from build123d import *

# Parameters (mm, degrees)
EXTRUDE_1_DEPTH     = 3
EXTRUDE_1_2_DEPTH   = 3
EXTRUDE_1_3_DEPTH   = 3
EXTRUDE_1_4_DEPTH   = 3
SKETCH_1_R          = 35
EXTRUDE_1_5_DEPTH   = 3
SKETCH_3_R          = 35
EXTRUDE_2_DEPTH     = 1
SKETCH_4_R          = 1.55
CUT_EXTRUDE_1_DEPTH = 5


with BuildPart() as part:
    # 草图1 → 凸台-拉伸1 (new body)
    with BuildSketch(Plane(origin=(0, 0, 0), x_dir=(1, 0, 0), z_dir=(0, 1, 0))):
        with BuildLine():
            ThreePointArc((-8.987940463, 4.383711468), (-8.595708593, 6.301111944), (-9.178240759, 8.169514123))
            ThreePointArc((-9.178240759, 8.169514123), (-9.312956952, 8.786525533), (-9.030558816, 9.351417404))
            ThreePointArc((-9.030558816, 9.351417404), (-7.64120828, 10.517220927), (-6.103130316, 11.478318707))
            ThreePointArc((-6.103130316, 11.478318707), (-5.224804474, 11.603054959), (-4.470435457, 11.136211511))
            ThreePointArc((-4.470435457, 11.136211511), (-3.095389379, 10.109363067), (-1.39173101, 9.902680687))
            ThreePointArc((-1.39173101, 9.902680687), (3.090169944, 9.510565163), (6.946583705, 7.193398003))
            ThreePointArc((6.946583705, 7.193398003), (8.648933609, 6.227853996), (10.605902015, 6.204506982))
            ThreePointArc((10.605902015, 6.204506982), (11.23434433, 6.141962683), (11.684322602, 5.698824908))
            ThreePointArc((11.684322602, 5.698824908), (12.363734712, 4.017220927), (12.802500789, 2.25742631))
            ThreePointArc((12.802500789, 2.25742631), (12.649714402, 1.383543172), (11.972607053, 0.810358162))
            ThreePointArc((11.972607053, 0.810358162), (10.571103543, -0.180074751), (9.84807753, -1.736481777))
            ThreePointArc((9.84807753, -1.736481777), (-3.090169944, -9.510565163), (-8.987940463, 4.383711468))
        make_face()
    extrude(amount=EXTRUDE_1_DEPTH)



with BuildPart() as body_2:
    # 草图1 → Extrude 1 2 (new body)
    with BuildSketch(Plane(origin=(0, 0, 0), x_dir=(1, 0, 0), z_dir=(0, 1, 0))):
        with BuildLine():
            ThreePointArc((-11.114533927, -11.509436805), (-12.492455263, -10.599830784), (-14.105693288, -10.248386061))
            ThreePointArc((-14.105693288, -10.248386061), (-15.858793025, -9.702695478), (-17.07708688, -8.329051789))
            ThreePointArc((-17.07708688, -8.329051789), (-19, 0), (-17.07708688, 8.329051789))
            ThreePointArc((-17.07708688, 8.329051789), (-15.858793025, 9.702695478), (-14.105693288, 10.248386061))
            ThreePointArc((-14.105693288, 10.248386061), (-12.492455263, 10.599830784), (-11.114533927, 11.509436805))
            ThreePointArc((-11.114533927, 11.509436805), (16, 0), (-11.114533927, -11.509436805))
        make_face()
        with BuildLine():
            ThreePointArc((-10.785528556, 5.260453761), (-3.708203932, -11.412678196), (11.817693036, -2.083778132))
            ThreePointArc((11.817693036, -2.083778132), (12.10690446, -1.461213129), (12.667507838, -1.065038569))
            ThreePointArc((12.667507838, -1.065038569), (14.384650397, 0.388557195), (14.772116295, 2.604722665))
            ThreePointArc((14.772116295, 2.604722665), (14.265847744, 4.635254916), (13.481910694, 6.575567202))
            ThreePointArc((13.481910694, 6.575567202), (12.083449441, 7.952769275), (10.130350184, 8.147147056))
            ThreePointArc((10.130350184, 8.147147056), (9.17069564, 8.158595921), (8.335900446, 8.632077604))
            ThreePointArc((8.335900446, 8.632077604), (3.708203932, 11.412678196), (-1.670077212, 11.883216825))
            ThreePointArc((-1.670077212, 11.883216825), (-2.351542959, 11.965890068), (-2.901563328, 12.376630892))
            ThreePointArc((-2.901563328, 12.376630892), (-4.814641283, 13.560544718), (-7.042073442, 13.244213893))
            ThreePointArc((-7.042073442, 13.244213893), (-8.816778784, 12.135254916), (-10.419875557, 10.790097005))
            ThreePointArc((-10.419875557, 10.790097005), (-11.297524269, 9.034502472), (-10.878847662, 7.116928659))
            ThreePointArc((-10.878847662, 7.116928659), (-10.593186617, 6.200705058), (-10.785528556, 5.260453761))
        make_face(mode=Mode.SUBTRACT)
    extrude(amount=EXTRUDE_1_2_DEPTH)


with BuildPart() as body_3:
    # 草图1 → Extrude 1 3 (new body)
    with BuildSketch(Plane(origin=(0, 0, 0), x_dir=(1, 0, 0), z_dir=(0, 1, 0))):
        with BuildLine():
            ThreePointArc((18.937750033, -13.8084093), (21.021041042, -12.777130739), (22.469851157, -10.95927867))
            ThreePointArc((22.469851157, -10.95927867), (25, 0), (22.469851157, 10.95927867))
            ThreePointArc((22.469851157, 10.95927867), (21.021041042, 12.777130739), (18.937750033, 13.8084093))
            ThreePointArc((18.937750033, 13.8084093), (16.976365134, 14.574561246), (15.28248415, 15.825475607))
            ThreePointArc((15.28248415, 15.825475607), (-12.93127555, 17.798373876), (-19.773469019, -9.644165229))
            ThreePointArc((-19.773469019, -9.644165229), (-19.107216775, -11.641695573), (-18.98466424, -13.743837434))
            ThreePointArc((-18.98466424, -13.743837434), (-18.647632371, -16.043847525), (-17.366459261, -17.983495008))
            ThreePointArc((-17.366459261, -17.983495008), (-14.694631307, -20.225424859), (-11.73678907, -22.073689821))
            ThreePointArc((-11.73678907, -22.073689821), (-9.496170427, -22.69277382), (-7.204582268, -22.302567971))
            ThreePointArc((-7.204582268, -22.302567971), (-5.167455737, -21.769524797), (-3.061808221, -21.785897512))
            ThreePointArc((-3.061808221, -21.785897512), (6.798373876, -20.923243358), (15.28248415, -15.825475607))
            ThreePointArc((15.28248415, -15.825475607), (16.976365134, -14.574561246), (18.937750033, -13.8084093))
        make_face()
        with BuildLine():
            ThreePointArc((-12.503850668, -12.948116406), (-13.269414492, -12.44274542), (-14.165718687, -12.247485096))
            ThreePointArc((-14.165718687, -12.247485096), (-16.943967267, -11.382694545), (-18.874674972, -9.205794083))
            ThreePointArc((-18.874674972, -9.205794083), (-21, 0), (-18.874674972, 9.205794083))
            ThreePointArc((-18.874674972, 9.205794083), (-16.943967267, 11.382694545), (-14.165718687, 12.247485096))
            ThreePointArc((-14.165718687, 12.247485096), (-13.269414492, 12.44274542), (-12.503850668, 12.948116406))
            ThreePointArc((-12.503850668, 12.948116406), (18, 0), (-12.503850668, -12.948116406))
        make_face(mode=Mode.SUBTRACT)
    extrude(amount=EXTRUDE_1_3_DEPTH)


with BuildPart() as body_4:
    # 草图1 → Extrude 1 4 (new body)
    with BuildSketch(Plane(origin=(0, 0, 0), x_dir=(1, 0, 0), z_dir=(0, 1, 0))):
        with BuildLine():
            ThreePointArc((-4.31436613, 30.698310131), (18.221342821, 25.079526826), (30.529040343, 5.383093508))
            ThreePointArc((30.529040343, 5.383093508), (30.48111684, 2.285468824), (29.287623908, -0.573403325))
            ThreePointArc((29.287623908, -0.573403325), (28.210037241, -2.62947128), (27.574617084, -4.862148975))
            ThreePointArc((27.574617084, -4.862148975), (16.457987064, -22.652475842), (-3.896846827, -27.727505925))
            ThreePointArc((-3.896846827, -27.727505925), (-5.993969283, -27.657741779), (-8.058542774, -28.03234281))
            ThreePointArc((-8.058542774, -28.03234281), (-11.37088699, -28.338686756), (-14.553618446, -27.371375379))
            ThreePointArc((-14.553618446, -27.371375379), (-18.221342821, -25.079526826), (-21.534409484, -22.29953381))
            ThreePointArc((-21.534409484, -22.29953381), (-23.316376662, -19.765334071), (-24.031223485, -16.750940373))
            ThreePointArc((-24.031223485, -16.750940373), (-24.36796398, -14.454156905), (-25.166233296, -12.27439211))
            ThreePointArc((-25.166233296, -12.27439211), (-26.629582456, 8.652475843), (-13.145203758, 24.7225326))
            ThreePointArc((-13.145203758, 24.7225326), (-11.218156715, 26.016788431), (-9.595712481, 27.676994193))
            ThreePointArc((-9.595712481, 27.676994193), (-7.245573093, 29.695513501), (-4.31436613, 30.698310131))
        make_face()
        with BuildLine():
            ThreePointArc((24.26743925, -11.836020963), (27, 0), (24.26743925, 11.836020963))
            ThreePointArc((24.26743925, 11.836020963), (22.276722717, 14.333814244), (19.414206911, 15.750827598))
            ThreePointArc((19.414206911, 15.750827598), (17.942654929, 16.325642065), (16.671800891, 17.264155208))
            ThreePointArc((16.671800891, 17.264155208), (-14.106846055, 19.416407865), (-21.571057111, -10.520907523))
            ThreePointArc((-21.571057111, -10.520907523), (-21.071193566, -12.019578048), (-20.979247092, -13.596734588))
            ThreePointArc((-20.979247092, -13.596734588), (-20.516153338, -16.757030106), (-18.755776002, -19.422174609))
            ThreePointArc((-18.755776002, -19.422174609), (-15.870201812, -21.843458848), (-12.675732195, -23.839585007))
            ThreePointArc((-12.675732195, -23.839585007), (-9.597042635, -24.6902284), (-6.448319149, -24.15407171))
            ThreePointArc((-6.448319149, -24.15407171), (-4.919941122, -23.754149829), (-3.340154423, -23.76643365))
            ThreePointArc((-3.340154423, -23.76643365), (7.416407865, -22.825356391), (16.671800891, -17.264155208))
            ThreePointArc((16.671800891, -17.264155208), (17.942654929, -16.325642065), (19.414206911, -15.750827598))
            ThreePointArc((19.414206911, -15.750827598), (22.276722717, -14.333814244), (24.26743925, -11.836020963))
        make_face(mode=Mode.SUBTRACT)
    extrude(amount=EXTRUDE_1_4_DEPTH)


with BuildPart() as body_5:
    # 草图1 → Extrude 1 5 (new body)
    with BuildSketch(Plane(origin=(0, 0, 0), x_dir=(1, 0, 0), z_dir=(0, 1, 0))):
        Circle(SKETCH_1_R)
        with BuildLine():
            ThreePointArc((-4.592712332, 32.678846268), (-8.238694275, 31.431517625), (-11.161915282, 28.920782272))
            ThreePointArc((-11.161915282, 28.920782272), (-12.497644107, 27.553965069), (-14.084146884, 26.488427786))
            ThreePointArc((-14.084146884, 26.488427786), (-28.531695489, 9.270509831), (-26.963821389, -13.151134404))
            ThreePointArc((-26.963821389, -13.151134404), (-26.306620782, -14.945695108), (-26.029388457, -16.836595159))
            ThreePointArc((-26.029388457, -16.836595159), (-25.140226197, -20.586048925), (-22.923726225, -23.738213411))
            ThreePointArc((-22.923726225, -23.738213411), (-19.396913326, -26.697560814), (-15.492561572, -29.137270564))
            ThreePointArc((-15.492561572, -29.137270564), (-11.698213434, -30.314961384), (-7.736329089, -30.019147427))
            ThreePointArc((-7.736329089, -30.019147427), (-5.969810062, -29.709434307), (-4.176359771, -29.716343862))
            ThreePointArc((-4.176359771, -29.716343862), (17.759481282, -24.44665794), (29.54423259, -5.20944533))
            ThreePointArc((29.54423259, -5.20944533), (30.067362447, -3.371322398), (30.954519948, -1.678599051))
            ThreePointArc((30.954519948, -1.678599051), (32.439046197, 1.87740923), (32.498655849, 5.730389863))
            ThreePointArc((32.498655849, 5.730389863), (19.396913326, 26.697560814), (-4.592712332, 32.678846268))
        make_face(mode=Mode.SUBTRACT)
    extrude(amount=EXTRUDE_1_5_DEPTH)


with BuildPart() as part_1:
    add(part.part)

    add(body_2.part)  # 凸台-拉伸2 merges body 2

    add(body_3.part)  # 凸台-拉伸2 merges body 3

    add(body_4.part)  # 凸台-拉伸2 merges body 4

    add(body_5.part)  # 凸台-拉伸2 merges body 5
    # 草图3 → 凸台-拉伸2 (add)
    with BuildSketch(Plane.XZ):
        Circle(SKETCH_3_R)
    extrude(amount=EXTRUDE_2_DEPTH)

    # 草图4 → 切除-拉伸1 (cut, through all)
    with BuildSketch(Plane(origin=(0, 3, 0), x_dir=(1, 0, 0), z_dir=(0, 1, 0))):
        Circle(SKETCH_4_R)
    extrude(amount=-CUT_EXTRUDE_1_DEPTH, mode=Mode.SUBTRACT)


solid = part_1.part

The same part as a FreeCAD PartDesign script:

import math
import FreeCAD as App
import Part
import Sketcher
from FreeCAD import Vector
Q = App.Units.Quantity

doc = App.newDocument("Part")
body = doc.addObject("PartDesign::Body", "Body")

# Sketch on XZ plane
sketch1 = doc.addObject("Sketcher::SketchObject", "Sketch")
body.addObject(sketch1)
sketch1.AttachmentSupport = (doc.XZ_Plane, [""])
sketch1.MapMode = "FlatFace"
sketch1.addGeometry([
    Part.ArcOfCircle(Part.Circle(Vector(-12.5, -6.1, 0), Vector(0, 0, 1), 3.9), math.radians(-32), math.radians(26)),  # 0
    Part.ArcOfCircle(Part.Circle(Vector(0, 0, 0), Vector(0, 0, 1), 10), math.radians(10), math.radians(206)),  # 1
    Part.ArcOfCircle(Part.Circle(Vector(13.1, 2.3, 0), Vector(0, 0, 1), 3.3), math.radians(-170), math.radians(-110)),  # 2
    Part.ArcOfCircle(Part.Circle(Vector(11.5, -2, 0), Vector(0, 0, 1), 1.3), math.radians(-10), math.radians(70)),  # 3
    Part.ArcOfCircle(Part.Circle(Vector(0, 0, 0), Vector(0, 0, 1), 13), math.radians(-26), math.radians(-10)),  # 4
    Part.ArcOfCircle(Part.Circle(Vector(10.8, -5.3, 0), Vector(0, 0, 1), 0.9), math.radians(-104), math.radians(-26)),  # 5
    Part.ArcOfCircle(Part.Circle(Vector(9.7, -10, 0), Vector(0, 0, 1), 3.9), math.radians(76), math.radians(134)),  # 6
    Part.ArcOfCircle(Part.Circle(Vector(0, 0, 0), Vector(0, 0, 1), 10), math.radians(-98), math.radians(-46)),  # 7
    Part.ArcOfCircle(Part.Circle(Vector(-1.9, -13.2, 0), Vector(0, 0, 1), 3.3), math.radians(82), math.radians(142)),  # 8
    Part.ArcOfCircle(Part.Circle(Vector(-5.5, -10.3, 0), Vector(0, 0, 1), 1.3), math.radians(-118), math.radians(-38)),  # 9
    Part.ArcOfCircle(Part.Circle(Vector(0, 0, 0), Vector(0, 0, 1), 13), math.radians(-134), math.radians(-118)),  # 10
    Part.ArcOfCircle(Part.Circle(Vector(-8.4, -8.7, 0), Vector(0, 0, 1), 0.9), math.radians(148), math.radians(226)),  # 11
], False)
sketch1.addConstraint([
    Sketcher.Constraint("Tangent", 0, 2, 1, 2),
    Sketcher.Constraint("Tangent", 1, 1, 2, 1),
    Sketcher.Constraint("Tangent", 2, 2, 3, 2),
    Sketcher.Constraint("Tangent", 3, 1, 4, 2),
    Sketcher.Constraint("Tangent", 4, 1, 5, 2),
    Sketcher.Constraint("Tangent", 5, 1, 6, 1),
    Sketcher.Constraint("Tangent", 6, 2, 7, 2),
    Sketcher.Constraint("Tangent", 7, 1, 8, 1),
    Sketcher.Constraint("Tangent", 8, 2, 9, 2),
    Sketcher.Constraint("Tangent", 9, 1, 10, 2),
    Sketcher.Constraint("Tangent", 10, 1, 11, 2),
    Sketcher.Constraint("Tangent", 11, 1, 0, 1),
    Sketcher.Constraint("Coincident", 1, 3, -1, 1),
    Sketcher.Constraint("Coincident", 4, 3, -1, 1),
    Sketcher.Constraint("Coincident", 7, 3, -1, 1),
    Sketcher.Constraint("Coincident", 10, 3, -1, 1),
    Sketcher.Constraint("Equal", 0, 6),
    Sketcher.Constraint("Equal", 1, 7),
    Sketcher.Constraint("Equal", 2, 8),
    Sketcher.Constraint("Equal", 3, 9),
    Sketcher.Constraint("Equal", 4, 10),
    Sketcher.Constraint("Equal", 5, 11),
    Sketcher.Constraint("Radius", 1, Q("10 mm")),
    Sketcher.Constraint("Radius", 4, Q("13 mm")),
    Sketcher.Constraint("Radius", 0, Q("3.924479 mm")),
    Sketcher.Constraint("Radius", 2, Q("3.333341 mm")),
    Sketcher.Constraint("Radius", 3, Q("1.302085 mm")),
    Sketcher.Constraint("Radius", 5, Q("0.948838 mm")),
    Sketcher.Constraint("DistanceX", -1, 1, 3, 1, Q("12.802501 mm")),
    Sketcher.Constraint("DistanceY", 6, 2, -1, 1, Q("7.193398 mm")),
    Sketcher.Constraint("DistanceY", 0, 3, 2, 3, Q("8.4194 mm")),
    Sketcher.Constraint("DistanceX", 0, 3, 9, 3, Q("7.0234 mm")),
])
pad1 = doc.addObject("PartDesign::Pad", "Pad")
body.addObject(pad1)
pad1.Profile = sketch1
pad1.Length = 3
pad1.Reversed = True
body2 = doc.addObject("PartDesign::Body", "Body001")

# Sketch on XZ plane
sketch2 = doc.addObject("Sketcher::SketchObject", "Sketch001")
body2.addObject(sketch2)
sketch2.AttachmentSupport = (doc.getObject("XZ_Plane001"), [""])
sketch2.MapMode = "FlatFace"
sketch2.addGeometry([
    Part.ArcOfCircle(Part.Circle(Vector(-14.2, 14.7, 0), Vector(0, 0, 1), 4.5), math.radians(-88), math.radians(-46)),  # 0
    Part.ArcOfCircle(Part.Circle(Vector(0, 0, 0), Vector(0, 0, 1), 16), math.radians(-134), math.radians(134)),  # 1
    Part.ArcOfCircle(Part.Circle(Vector(-14.2, -14.7, 0), Vector(0, 0, 1), 4.5), math.radians(46), math.radians(88)),  # 2
    Part.ArcOfCircle(Part.Circle(Vector(-14, -6.8, 0), Vector(0, 0, 1), 3.4), math.radians(-154), math.radians(-92)),  # 3
    Part.ArcOfCircle(Part.Circle(Vector(0, 0, 0), Vector(0, 0, 1), 19), math.radians(154), math.radians(206)),  # 4
    Part.ArcOfCircle(Part.Circle(Vector(-14, 6.8, 0), Vector(0, 0, 1), 3.4), math.radians(92), math.radians(154)),  # 5
    Part.ArcOfCircle(Part.Circle(Vector(-12.5, -6.1, 0), Vector(0, 0, 1), 1.9), math.radians(-32), math.radians(26)),  # 6
    Part.ArcOfCircle(Part.Circle(Vector(-8.4, -8.7, 0), Vector(0, 0, 1), 2.9), math.radians(148), math.radians(226)),  # 7
    Part.ArcOfCircle(Part.Circle(Vector(0, 0, 0), Vector(0, 0, 1), 15), math.radians(-134), math.radians(-118)),  # 8
    Part.ArcOfCircle(Part.Circle(Vector(-5.5, -10.3, 0), Vector(0, 0, 1), 3.3), math.radians(-118), math.radians(-38)),  # 9
    Part.ArcOfCircle(Part.Circle(Vector(-1.9, -13.2, 0), Vector(0, 0, 1), 1.3), math.radians(82), math.radians(142)),  # 10
    Part.ArcOfCircle(Part.Circle(Vector(0, 0, 0), Vector(0, 0, 1), 12), math.radians(-98), math.radians(-46)),  # 11
    Part.ArcOfCircle(Part.Circle(Vector(9.7, -10, 0), Vector(0, 0, 1), 1.9), math.radians(76), math.radians(134)),  # 12
    Part.ArcOfCircle(Part.Circle(Vector(10.8, -5.3, 0), Vector(0, 0, 1), 2.9), math.radians(-104), math.radians(-26)),  # 13
    Part.ArcOfCircle(Part.Circle(Vector(0, 0, 0), Vector(0, 0, 1), 15), math.radians(-26), math.radians(-10)),  # 14
    Part.ArcOfCircle(Part.Circle(Vector(11.5, -2, 0), Vector(0, 0, 1), 3.3), math.radians(-10), math.radians(70)),  # 15
    Part.ArcOfCircle(Part.Circle(Vector(13.1, 2.3, 0), Vector(0, 0, 1), 1.3), math.radians(-170), math.radians(-110)),  # 16
    Part.ArcOfCircle(Part.Circle(Vector(0, 0, 0), Vector(0, 0, 1), 12), math.radians(10), math.radians(206)),  # 17
], False)
sketch2.addConstraint([
    Sketcher.Constraint("Tangent", 0, 2, 1, 2),
    Sketcher.Constraint("Tangent", 1, 1, 2, 1),
    Sketcher.Constraint("Tangent", 2, 2, 3, 2),
    Sketcher.Constraint("Tangent", 3, 1, 4, 2),
    Sketcher.Constraint("Tangent", 4, 1, 5, 2),
    Sketcher.Constraint("Tangent", 5, 1, 0, 1),
    Sketcher.Constraint("Tangent", 6, 1, 7, 1),
    Sketcher.Constraint("Tangent", 7, 2, 8, 1),
    Sketcher.Constraint("Tangent", 8, 2, 9, 1),
    Sketcher.Constraint("Tangent", 9, 2, 10, 2),
    Sketcher.Constraint("Tangent", 10, 1, 11, 1),
    Sketcher.Constraint("Tangent", 11, 2, 12, 2),
    Sketcher.Constraint("Tangent", 12, 1, 13, 1),
    Sketcher.Constraint("Tangent", 13, 2, 14, 1),
    Sketcher.Constraint("Tangent", 14, 2, 15, 1),
    Sketcher.Constraint("Tangent", 15, 2, 16, 2),
    Sketcher.Constraint("Tangent", 16, 1, 17, 1),
    Sketcher.Constraint("Tangent", 17, 2, 6, 2),
    Sketcher.Constraint("Coincident", 1, 3, -1, 1),
    Sketcher.Constraint("Coincident", 4, 3, -1, 1),
    Sketcher.Constraint("Coincident", 8, 3, -1, 1),
    Sketcher.Constraint("Coincident", 11, 3, -1, 1),
    Sketcher.Constraint("Coincident", 14, 3, -1, 1),
    Sketcher.Constraint("Coincident", 17, 3, -1, 1),
    Sketcher.Constraint("Equal", 0, 2),
    Sketcher.Constraint("Equal", 3, 5),
    Sketcher.Constraint("Equal", 6, 12),
    Sketcher.Constraint("Equal", 7, 13),
    Sketcher.Constraint("Equal", 8, 14),
    Sketcher.Constraint("Equal", 9, 15),
    Sketcher.Constraint("Equal", 10, 16),
    Sketcher.Constraint("Equal", 11, 17),
    Sketcher.Constraint("Vertical", 0, 3, 2, 3),
    Sketcher.Constraint("Radius", 1, Q("16 mm")),
    Sketcher.Constraint("Radius", 4, Q("19 mm")),
    Sketcher.Constraint("Radius", 8, Q("15 mm")),
    Sketcher.Constraint("Radius", 11, Q("12 mm")),
    Sketcher.Constraint("Radius", 0, Q("4.500382 mm")),
    Sketcher.Constraint("Radius", 6, Q("1.924478 mm")),
    Sketcher.Constraint("Radius", 10, Q("1.333341 mm")),
    Sketcher.Constraint("Radius", 3, Q("3.420186 mm")),
    Sketcher.Constraint("Radius", 7, Q("2.948838 mm")),
    Sketcher.Constraint("Radius", 9, Q("3.302085 mm")),
    Sketcher.Constraint("DistanceY", 2, 3, 3, 3, Q("7.917 mm")),
    Sketcher.Constraint("DistanceX", -1, 1, 11, 2, Q("8.3359 mm")),
    Sketcher.Constraint("DistanceX", 6, 3, 9, 3, Q("7.0234 mm")),
    Sketcher.Constraint("DistanceX", 7, 3, 10, 3, Q("6.515798 mm")),
    Sketcher.Constraint("DistanceY", 14, 2, 15, 3, Q("0.573401 mm")),
])
pad2 = doc.addObject("PartDesign::Pad", "Pad001")
body2.addObject(pad2)
pad2.Profile = sketch2
pad2.Length = 3
pad2.Reversed = True
body3 = doc.addObject("PartDesign::Body", "Body002")

# Sketch on XZ plane
sketch3 = doc.addObject("Sketcher::SketchObject", "Sketch002")
body3.addObject(sketch3)
sketch3.AttachmentSupport = (doc.getObject("XZ_Plane002"), [""])
sketch3.MapMode = "FlatFace"
sketch3.addGeometry([
    Part.ArcOfCircle(Part.Circle(Vector(17.7, 8.6, 0), Vector(0, 0, 1), 5.3), math.radians(26), math.radians(76)),  # 0
    Part.ArcOfCircle(Part.Circle(Vector(0, 0, 0), Vector(0, 0, 1), 25), math.radians(-26), math.radians(26)),  # 1
    Part.ArcOfCircle(Part.Circle(Vector(17.7, -8.6, 0), Vector(0, 0, 1), 5.3), math.radians(-76), math.radians(-26)),  # 2
    Part.ArcOfCircle(Part.Circle(Vector(20.8, -21.6, 0), Vector(0, 0, 1), 8), math.radians(104), math.radians(134)),  # 3
    Part.ArcOfCircle(Part.Circle(Vector(0, 0, 0), Vector(0, 0, 1), 22), math.radians(154), math.radians(314)),  # 4
    Part.ArcOfCircle(Part.Circle(Vector(-27, 13.2, 0), Vector(0, 0, 1), 8), math.radians(-26), math.radians(4)),  # 5
    Part.ArcOfCircle(Part.Circle(Vector(-13.7, 14.1, 0), Vector(0, 0, 1), 5.3), math.radians(134), math.radians(184)),  # 6
    Part.ArcOfCircle(Part.Circle(Vector(0, 0, 0), Vector(0, 0, 1), 25), math.radians(118), math.radians(134)),  # 7
    Part.ArcOfCircle(Part.Circle(Vector(-9.2, 17.4, 0), Vector(0, 0, 1), 5.3), math.radians(68), math.radians(118)),  # 8
    Part.ArcOfCircle(Part.Circle(Vector(-4.2, 29.7, 0), Vector(0, 0, 1), 8), math.radians(-112), math.radians(-82)),  # 9
    Part.ArcOfCircle(Part.Circle(Vector(0, 0, 0), Vector(0, 0, 1), 22), math.radians(46), math.radians(98)),  # 10
    Part.ArcOfCircle(Part.Circle(Vector(20.8, 21.6, 0), Vector(0, 0, 1), 8), math.radians(-134), math.radians(-104)),  # 11
    Part.ArcOfCircle(Part.Circle(Vector(0, 0, 0), Vector(0, 0, 1), 18), math.radians(-134), math.radians(134)),  # 12
    Part.ArcOfCircle(Part.Circle(Vector(-14.2, 14.7, 0), Vector(0, 0, 1), 2.5), math.radians(-88), math.radians(-46)),  # 13
    Part.ArcOfCircle(Part.Circle(Vector(-14, 6.8, 0), Vector(0, 0, 1), 5.4), math.radians(92), math.radians(154)),  # 14
    Part.ArcOfCircle(Part.Circle(Vector(0, 0, 0), Vector(0, 0, 1), 21), math.radians(154), math.radians(206)),  # 15
    Part.ArcOfCircle(Part.Circle(Vector(-14, -6.8, 0), Vector(0, 0, 1), 5.4), math.radians(-154), math.radians(-92)),  # 16
    Part.ArcOfCircle(Part.Circle(Vector(-14.2, -14.7, 0), Vector(0, 0, 1), 2.5), math.radians(46), math.radians(88)),  # 17
], False)
sketch3.addConstraint([
    Sketcher.Constraint("Tangent", 0, 1, 1, 2),
    Sketcher.Constraint("Tangent", 1, 1, 2, 2),
    Sketcher.Constraint("Tangent", 2, 1, 3, 1),
    Sketcher.Constraint("Tangent", 3, 2, 4, 2),
    Sketcher.Constraint("Tangent", 4, 1, 5, 1),
    Sketcher.Constraint("Tangent", 5, 2, 6, 2),
    Sketcher.Constraint("Tangent", 6, 1, 7, 2),
    Sketcher.Constraint("Tangent", 7, 1, 8, 2),
    Sketcher.Constraint("Tangent", 8, 1, 9, 1),
    Sketcher.Constraint("Tangent", 9, 2, 10, 2),
    Sketcher.Constraint("Tangent", 10, 1, 11, 1),
    Sketcher.Constraint("Tangent", 11, 2, 0, 2),
    Sketcher.Constraint("Tangent", 12, 2, 13, 2),
    Sketcher.Constraint("Tangent", 13, 1, 14, 1),
    Sketcher.Constraint("Tangent", 14, 2, 15, 1),
    Sketcher.Constraint("Tangent", 15, 2, 16, 1),
    Sketcher.Constraint("Tangent", 16, 2, 17, 2),
    Sketcher.Constraint("Tangent", 17, 1, 12, 1),
    Sketcher.Constraint("Coincident", 1, 3, -1, 1),
    Sketcher.Constraint("Coincident", 4, 3, -1, 1),
    Sketcher.Constraint("Coincident", 7, 3, -1, 1),
    Sketcher.Constraint("Coincident", 10, 3, -1, 1),
    Sketcher.Constraint("Coincident", 12, 3, -1, 1),
    Sketcher.Constraint("Coincident", 15, 3, -1, 1),
    Sketcher.Constraint("Equal", 0, 2),
    Sketcher.Constraint("Equal", 3, 5),
    Sketcher.Constraint("Equal", 2, 6),
    Sketcher.Constraint("Equal", 1, 7),
    Sketcher.Constraint("Equal", 6, 8),
    Sketcher.Constraint("Equal", 5, 9),
    Sketcher.Constraint("Equal", 4, 10),
    Sketcher.Constraint("Equal", 9, 11),
    Sketcher.Constraint("Equal", 14, 16),
    Sketcher.Constraint("Equal", 13, 17),
    Sketcher.Constraint("Vertical", 0, 3, 2, 3),
    Sketcher.Constraint("Vertical", 14, 3, 16, 3),
    Sketcher.Constraint("Radius", 1, Q("25 mm")),
    Sketcher.Constraint("Radius", 4, Q("22 mm")),
    Sketcher.Constraint("Radius", 12, Q("18 mm")),
    Sketcher.Constraint("Radius", 15, Q("21 mm")),
    Sketcher.Constraint("Radius", 13, Q("2.500382 mm")),
    Sketcher.Constraint("Radius", 0, Q("5.347086 mm")),
    Sketcher.Constraint("Radius", 3, Q("8.008383 mm")),
    Sketcher.Constraint("Radius", 14, Q("5.420186 mm")),
    Sketcher.Constraint("DistanceY", 14, 3, 13, 3, Q("7.917 mm")),
    Sketcher.Constraint("DistanceY", 8, 3, 6, 1, Q("0.631002 mm")),
    Sketcher.Constraint("DistanceX", 6, 3, 9, 3, Q("9.475701 mm")),
    Sketcher.Constraint("DistanceX", 2, 1, 1, 1, Q("3.532101 mm")),
])
pad3 = doc.addObject("PartDesign::Pad", "Pad002")
body3.addObject(pad3)
pad3.Profile = sketch3
pad3.Length = 3
pad3.Reversed = True
body4 = doc.addObject("PartDesign::Body", "Body003")

# Sketch on XZ plane
sketch4 = doc.addObject("Sketcher::SketchObject", "Sketch003")
body4.addObject(sketch4)
sketch4.AttachmentSupport = (doc.getObject("XZ_Plane003"), [""])
sketch4.MapMode = "FlatFace"
sketch4.addGeometry([
    Part.ArcOfCircle(Part.Circle(Vector(0, 0, 0), Vector(0, 0, 1), 31), math.radians(-98), math.radians(-10)),  # 0
    Part.ArcOfCircle(Part.Circle(Vector(-3.172902, -22.576368, 0), Vector(0, 0, 1), 8.201762), math.radians(-141.54542), math.radians(-98)),  # 1
    Part.ArcOfCircle(Part.Circle(Vector(-18.458427, -34.715251, 0), Vector(0, 0, 1), 11.317454), math.radians(38.45458), math.radians(62)),  # 2
    Part.ArcOfCircle(Part.Circle(Vector(0, 0, 0), Vector(0, 0, 1), 28), math.radians(154), math.radians(242)),  # 3
    Part.ArcOfCircle(Part.Circle(Vector(-35.338294, 17.235637, 0), Vector(0, 0, 1), 11.317454), math.radians(-26), math.radians(-2.45458)),  # 4
    Part.ArcOfCircle(Part.Circle(Vector(-15.836987, 16.39968, 0), Vector(0, 0, 1), 8.201762), math.radians(134), math.radians(177.54542)),  # 5
    Part.ArcOfCircle(Part.Circle(Vector(0, 0, 0), Vector(0, 0, 1), 31), math.radians(118), math.radians(134)),  # 6
    Part.ArcOfCircle(Part.Circle(Vector(-10.495824, 19.739774, 0), Vector(0, 0, 1), 8.643324), math.radians(73.621334), math.radians(118)),  # 7
    Part.ArcOfCircle(Part.Circle(Vector(-5.272096, 37.51291, 0), Vector(0, 0, 1), 9.88157), math.radians(-106.378666), math.radians(-82)),  # 8
    Part.ArcOfCircle(Part.Circle(Vector(0, 0, 0), Vector(0, 0, 1), 28), math.radians(10), math.radians(98)),  # 9
    Part.ArcOfCircle(Part.Circle(Vector(38.720134, 6.827404, 0), Vector(0, 0, 1), 11.317454), math.radians(-170), math.radians(-146.45458)),  # 10
    Part.ArcOfCircle(Part.Circle(Vector(22.451882, -3.958873, 0), Vector(0, 0, 1), 8.201762), math.radians(-10), math.radians(33.54542)),  # 11
    Part.ArcOfCircle(Part.Circle(Vector(17.663922, 8.61527, 0), Vector(0, 0, 1), 7.347086), math.radians(26), math.radians(76.217995)),  # 12
    Part.ArcOfCircle(Part.Circle(Vector(20.845575, 21.586225, 0), Vector(0, 0, 1), 6.008383), math.radians(-134), math.radians(-103.782005)),  # 13
    Part.ArcOfCircle(Part.Circle(Vector(0, 0, 0), Vector(0, 0, 1), 24), math.radians(46), math.radians(98)),  # 14
    Part.ArcOfCircle(Part.Circle(Vector(-4.17636, 29.716344, 0), Vector(0, 0, 1), 6.008383), math.radians(-112.217995), math.radians(-82)),  # 15
    Part.ArcOfCircle(Part.Circle(Vector(-9.226484, 17.352493, 0), Vector(0, 0, 1), 7.347086), math.radians(67.782005), math.radians(118)),  # 16
    Part.ArcOfCircle(Part.Circle(Vector(0, 0, 0), Vector(0, 0, 1), 27), math.radians(118), math.radians(134)),  # 17
    Part.ArcOfCircle(Part.Circle(Vector(-13.652061, 14.137123, 0), Vector(0, 0, 1), 7.347086), math.radians(134), math.radians(184.217995)),  # 18
    Part.ArcOfCircle(Part.Circle(Vector(-26.971356, 13.154809, 0), Vector(0, 0, 1), 6.008383), math.radians(-26), math.radians(4.217995)),  # 19
    Part.ArcOfCircle(Part.Circle(Vector(0, 0, 0), Vector(0, 0, 1), 24), math.radians(154), math.radians(314)),  # 20
    Part.ArcOfCircle(Part.Circle(Vector(20.845575, -21.586225, 0), Vector(0, 0, 1), 6.008383), math.radians(103.782005), math.radians(134)),  # 21
    Part.ArcOfCircle(Part.Circle(Vector(17.663922, -8.61527, 0), Vector(0, 0, 1), 7.347086), math.radians(-76.217995), math.radians(-26)),  # 22
    Part.ArcOfCircle(Part.Circle(Vector(0, 0, 0), Vector(0, 0, 1), 27), math.radians(-26), math.radians(26)),  # 23
], False)
sketch4.addConstraint([
    Sketcher.Constraint("Coincident", 0, 1, 1, 2),
    Sketcher.Constraint("Coincident", 1, 1, 2, 1),
    Sketcher.Constraint("Coincident", 2, 2, 3, 2),
    Sketcher.Constraint("Coincident", 3, 1, 4, 1),
    Sketcher.Constraint("Coincident", 4, 2, 5, 2),
    Sketcher.Constraint("Coincident", 5, 1, 6, 2),
    Sketcher.Constraint("Coincident", 6, 1, 7, 2),
    Sketcher.Constraint("Coincident", 7, 1, 8, 1),
    Sketcher.Constraint("Coincident", 8, 2, 9, 2),
    Sketcher.Constraint("Coincident", 9, 1, 10, 1),
    Sketcher.Constraint("Coincident", 10, 2, 11, 2),
    Sketcher.Constraint("Coincident", 11, 1, 0, 2),
    Sketcher.Constraint("Coincident", 12, 2, 13, 2),
    Sketcher.Constraint("Coincident", 13, 1, 14, 1),
    Sketcher.Constraint("Coincident", 14, 2, 15, 2),
    Sketcher.Constraint("Coincident", 15, 1, 16, 1),
    Sketcher.Constraint("Coincident", 16, 2, 17, 1),
    Sketcher.Constraint("Coincident", 17, 2, 18, 1),
    Sketcher.Constraint("Coincident", 18, 2, 19, 2),
    Sketcher.Constraint("Coincident", 19, 1, 20, 1),
    Sketcher.Constraint("Coincident", 20, 2, 21, 2),
    Sketcher.Constraint("Coincident", 21, 1, 22, 1),
    Sketcher.Constraint("Coincident", 22, 2, 23, 1),
    Sketcher.Constraint("Coincident", 23, 2, 12, 1),
    Sketcher.Constraint("Coincident", 0, 3, -1, 1),
    Sketcher.Constraint("Coincident", 3, 3, -1, 1),
    Sketcher.Constraint("Coincident", 6, 3, -1, 1),
    Sketcher.Constraint("Coincident", 9, 3, -1, 1),
    Sketcher.Constraint("Coincident", 14, 3, -1, 1),
    Sketcher.Constraint("Coincident", 17, 3, -1, 1),
    Sketcher.Constraint("Coincident", 20, 3, -1, 1),
    Sketcher.Constraint("Coincident", 23, 3, -1, 1),
    Sketcher.Constraint("Radius", 0, Q("31 mm")),
    Sketcher.Constraint("Radius", 3, Q("28 mm")),
    Sketcher.Constraint("Radius", 6, Q("31 mm")),
    Sketcher.Constraint("Radius", 9, Q("28 mm")),
    Sketcher.Constraint("Radius", 14, Q("24 mm")),
    Sketcher.Constraint("Radius", 17, Q("27 mm")),
    Sketcher.Constraint("Radius", 20, Q("24 mm")),
    Sketcher.Constraint("Radius", 23, Q("27 mm")),
    Sketcher.Constraint("Radius", 1, Q("8.201762 mm")),
    Sketcher.Constraint("Radius", 5, Q("8.201762 mm")),
    Sketcher.Constraint("Radius", 8, Q("9.88157 mm")),
    Sketcher.Constraint("Radius", 11, Q("8.201762 mm")),
    Sketcher.Constraint("Radius", 2, Q("11.317454 mm")),
    Sketcher.Constraint("Radius", 4, Q("11.317454 mm")),
    Sketcher.Constraint("Radius", 7, Q("8.643324 mm")),
    Sketcher.Constraint("Radius", 10, Q("11.317454 mm")),
    Sketcher.Constraint("Radius", 12, Q("7.347086 mm")),
    Sketcher.Constraint("Radius", 13, Q("6.008383 mm")),
    Sketcher.Constraint("Radius", 15, Q("6.008383 mm")),
    Sketcher.Constraint("Radius", 16, Q("7.347086 mm")),
    Sketcher.Constraint("Radius", 18, Q("7.347086 mm")),
    Sketcher.Constraint("Radius", 19, Q("6.008383 mm")),
    Sketcher.Constraint("Radius", 21, Q("6.008383 mm")),
    Sketcher.Constraint("Radius", 22, Q("7.347086 mm")),
    Sketcher.Constraint("DistanceY", 7, 1, 15, 3, Q("1.684001 mm")),
    Sketcher.Constraint("DistanceY", 10, 2, 10, 3, Q("6.254001 mm")),
    Sketcher.Constraint("DistanceX", 1, 3, -1, 1, Q("3.172902 mm")),
    Sketcher.Constraint("DistanceX", -1, 1, 13, 1, Q("16.671801 mm")),
    Sketcher.Constraint("DistanceX", -1, 1, 20, 2, Q("16.671801 mm")),
    Sketcher.Constraint("DistanceX", 18, 3, 15, 3, Q("9.475701 mm")),
    Sketcher.Constraint("DistanceY", 7, 3, 6, 1, Q("7.631602 mm")),
    Sketcher.Constraint("DistanceX", 12, 3, 10, 2, Q("11.623702 mm")),
    Sketcher.Constraint("DistanceX", 22, 3, 10, 2, Q("11.623702 mm")),
    Sketcher.Constraint("DistanceY", 11, 3, 12, 2, Q("19.7097 mm")),
    Sketcher.Constraint("DistanceY", 7, 3, 15, 1, Q("4.414298 mm")),
    Sketcher.Constraint("DistanceX", 19, 3, 19, 1, Q("5.400299 mm")),
    Sketcher.Constraint("DistanceX", 22, 2, 11, 1, Q("6.261601 mm")),
    Sketcher.Constraint("DistanceY", -1, 1, 5, 3, Q("16.39968 mm")),
    Sketcher.Constraint("DistanceY", -1, 1, 8, 3, Q("37.51291 mm")),
    Sketcher.Constraint("DistanceY", -1, 1, 12, 3, Q("8.61527 mm")),
    Sketcher.Constraint("DistanceX", 15, 3, -1, 1, Q("4.17636 mm")),
    Sketcher.Constraint("DistanceY", 0, 1, -1, 1, Q("30.69831 mm")),
    Sketcher.Constraint("DistanceY", -1, 1, 4, 2, Q("16.75094 mm")),
    Sketcher.Constraint("DistanceX", 5, 1, -1, 1, Q("21.534409 mm")),
    Sketcher.Constraint("DistanceY", -1, 1, 9, 1, Q("4.862149 mm")),
    Sketcher.Constraint("DistanceX", -1, 1, 11, 1, Q("30.52904 mm")),
    Sketcher.Constraint("DistanceX", -1, 1, 23, 2, Q("24.267439 mm")),
    Sketcher.Constraint("DistanceX", 1, 1, 1, 3, Q("6.422811 mm")),
    Sketcher.Constraint("DistanceX", 2, 2, 1, 1, Q("3.549491 mm")),
    Sketcher.Constraint("DistanceY", 3, 1, 5, 3, Q("4.125288 mm")),
    Sketcher.Constraint("DistanceX", 8, 3, 8, 2, Q("1.375249 mm")),
    Sketcher.Constraint("DistanceY", 14, 2, 15, 3, Q("5.94991 mm")),
    Sketcher.Constraint("DistanceY", 16, 2, 6, 1, Q("3.53179 mm")),
    Sketcher.Constraint("DistanceY", 17, 2, 5, 1, Q("2.877359 mm")),
    Sketcher.Constraint("DistanceX", 18, 2, 5, 3, Q("5.14226 mm")),
    Sketcher.Constraint("DistanceX", -1, 1, 21, 1, Q("19.414207 mm")),
])
pad4 = doc.addObject("PartDesign::Pad", "Pad003")
body4.addObject(pad4)
pad4.Profile = sketch4
pad4.Length = 3
pad4.Reversed = True
body5 = doc.addObject("PartDesign::Body", "Body004")

# Sketch on XZ plane
sketch5 = doc.addObject("Sketcher::SketchObject", "Sketch004")
body5.addObject(sketch5)
sketch5.AttachmentSupport = (doc.getObject("XZ_Plane004"), [""])
sketch5.MapMode = "FlatFace"
sketch5.addGeometry([
    Part.Circle(Vector(0, 0, 0), Vector(0, 0, 1), 35),  # 0
    Part.ArcOfCircle(Part.Circle(Vector(-3.172902, -22.576368, 0), Vector(0, 0, 1), 10.201762), math.radians(-141.54542), math.radians(-98)),  # 1
    Part.ArcOfCircle(Part.Circle(Vector(0, 0, 0), Vector(0, 0, 1), 33), math.radians(-98), math.radians(-10)),  # 2
    Part.ArcOfCircle(Part.Circle(Vector(22.451882, -3.958873, 0), Vector(0, 0, 1), 10.201762), math.radians(-10), math.radians(33.54542)),  # 3
    Part.ArcOfCircle(Part.Circle(Vector(38.720134, 6.827404, 0), Vector(0, 0, 1), 9.317454), math.radians(-170), math.radians(-146.45458)),  # 4
    Part.ArcOfCircle(Part.Circle(Vector(0.430487, 0.602598, 0), Vector(0, 0, 1), 29.475977), math.radians(8.991711), math.radians(98.991711)),  # 5
    Part.ArcOfCircle(Part.Circle(Vector(-5.111929, 39.795281, 0), Vector(0, 0, 1), 10.122266), math.radians(-105.026752), math.radians(-84.696762)),  # 6
    Part.ArcOfCircle(Part.Circle(Vector(-10.495824, 19.739774, 0), Vector(0, 0, 1), 10.643324), math.radians(74.973248), math.radians(118)),  # 7
    Part.ArcOfCircle(Part.Circle(Vector(0, 0, 0), Vector(0, 0, 1), 33), math.radians(118), math.radians(134)),  # 8
    Part.ArcOfCircle(Part.Circle(Vector(-15.836987, 16.39968, 0), Vector(0, 0, 1), 10.201762), math.radians(134), math.radians(177.54542)),  # 9
    Part.ArcOfCircle(Part.Circle(Vector(-35.338294, 17.235637, 0), Vector(0, 0, 1), 9.317454), math.radians(-26), math.radians(-2.45458)),  # 10
    Part.ArcOfCircle(Part.Circle(Vector(0, 0, 0), Vector(0, 0, 1), 30), math.radians(154), math.radians(242)),  # 11
    Part.ArcOfCircle(Part.Circle(Vector(-18.458427, -34.715251, 0), Vector(0, 0, 1), 9.317454), math.radians(38.45458), math.radians(62)),  # 12
], False)
sketch5.addConstraint([
    Sketcher.Constraint("Coincident", 1, 2, 2, 1),
    Sketcher.Constraint("Coincident", 2, 2, 3, 1),
    Sketcher.Constraint("Coincident", 3, 2, 4, 2),
    Sketcher.Constraint("Coincident", 4, 1, 5, 1),
    Sketcher.Constraint("Coincident", 5, 2, 6, 2),
    Sketcher.Constraint("Coincident", 6, 1, 7, 1),
    Sketcher.Constraint("Coincident", 7, 2, 8, 1),
    Sketcher.Constraint("Coincident", 8, 2, 9, 1),
    Sketcher.Constraint("Coincident", 9, 2, 10, 2),
    Sketcher.Constraint("Coincident", 10, 1, 11, 1),
    Sketcher.Constraint("Coincident", 11, 2, 12, 2),
    Sketcher.Constraint("Coincident", 12, 1, 1, 1),
    Sketcher.Constraint("Coincident", 0, 3, -1, 1),
    Sketcher.Constraint("Coincident", 2, 3, -1, 1),
    Sketcher.Constraint("Coincident", 8, 3, -1, 1),
    Sketcher.Constraint("Coincident", 11, 3, -1, 1),
    Sketcher.Constraint("Diameter", 0, Q("70 mm")),
    Sketcher.Constraint("Radius", 2, Q("33 mm")),
    Sketcher.Constraint("Radius", 8, Q("33 mm")),
    Sketcher.Constraint("Radius", 11, Q("30 mm")),
    Sketcher.Constraint("Radius", 1, Q("10.201762 mm")),
    Sketcher.Constraint("Radius", 3, Q("10.201762 mm")),
    Sketcher.Constraint("Radius", 9, Q("10.201762 mm")),
    Sketcher.Constraint("Radius", 4, Q("9.317454 mm")),
    Sketcher.Constraint("Radius", 5, Q("29.475977 mm")),
    Sketcher.Constraint("Radius", 6, Q("10.122266 mm")),
    Sketcher.Constraint("Radius", 7, Q("10.643324 mm")),
    Sketcher.Constraint("Radius", 10, Q("9.317454 mm")),
    Sketcher.Constraint("Radius", 12, Q("9.317454 mm")),
    Sketcher.Constraint("DistanceY", 5, 3, 3, 2, Q("1.076001 mm")),
    Sketcher.Constraint("DistanceX", 1, 3, -1, 1, Q("3.172902 mm")),
    Sketcher.Constraint("DistanceY", -1, 1, 5, 3, Q("0.602598 mm")),
    Sketcher.Constraint("DistanceX", 4, 1, 4, 3, Q("9.175901 mm")),
    Sketcher.Constraint("DistanceX", 6, 1, 6, 3, Q("2.6244 mm")),
    Sketcher.Constraint("DistanceX", 7, 2, 5, 2, Q("11.316202 mm")),
    Sketcher.Constraint("DistanceX", 9, 2, 9, 3, Q("10.192401 mm")),
    Sketcher.Constraint("DistanceX", 6, 3, -1, 1, Q("5.111929 mm")),
    Sketcher.Constraint("DistanceY", -1, 1, 6, 3, Q("39.795281 mm")),
    Sketcher.Constraint("DistanceY", -1, 1, 9, 3, Q("16.39968 mm")),
    Sketcher.Constraint("DistanceY", 2, 2, -1, 1, Q("5.73039 mm")),
    Sketcher.Constraint("DistanceX", -1, 1, 3, 2, Q("30.95452 mm")),
    Sketcher.Constraint("DistanceX", 5, 2, -1, 1, Q("4.17636 mm")),
    Sketcher.Constraint("DistanceX", 10, 1, -1, 1, Q("26.963821 mm")),
    Sketcher.Constraint("DistanceX", 1, 2, 1, 3, Q("1.419811 mm")),
    Sketcher.Constraint("DistanceX", 8, 2, 9, 3, Q("7.086739 mm")),
    Sketcher.Constraint("DistanceX", 12, 3, 11, 2, Q("4.37428 mm")),
    Sketcher.Constraint("DistanceX", 11, 2, 12, 1, Q("2.922232 mm")),
])
pad5 = doc.addObject("PartDesign::Pad", "Pad004")
body5.addObject(pad5)
pad5.Profile = sketch5
pad5.Length = 3
pad5.Reversed = True
body.AllowCompound = True
doc.recompute()

boolean = doc.addObject("PartDesign::Boolean", "Boolean")
body.addObject(boolean)
boolean.Type = "Fuse"
boolean.addObjects([body2])
doc.recompute()

boolean2 = doc.addObject("PartDesign::Boolean", "Boolean001")
body.addObject(boolean2)
boolean2.Type = "Fuse"
boolean2.addObjects([body3])
doc.recompute()

boolean3 = doc.addObject("PartDesign::Boolean", "Boolean002")
body.addObject(boolean3)
boolean3.Type = "Fuse"
boolean3.addObjects([body4])
doc.recompute()

boolean4 = doc.addObject("PartDesign::Boolean", "Boolean003")
body.addObject(boolean4)
boolean4.Type = "Fuse"
boolean4.addObjects([body5])

# Sketch on XZ plane
sketch6 = doc.addObject("Sketcher::SketchObject", "Sketch005")
body.addObject(sketch6)
sketch6.AttachmentSupport = (doc.XZ_Plane, [""])
sketch6.MapMode = "FlatFace"
sketch6.addGeometry(Part.Circle(Vector(0, 0, 0), Vector(0, 0, 1), 35), False)
sketch6.addConstraint([
    Sketcher.Constraint("Coincident", 0, 3, -1, 1),
    Sketcher.Constraint("Diameter", 0, Q("70 mm")),
])
pad6 = doc.addObject("PartDesign::Pad", "Pad005")
body.addObject(pad6)
pad6.Profile = sketch6
pad6.Length = 1

# Sketch on XZ plane
sketch7 = doc.addObject("Sketcher::SketchObject", "Sketch006")
body.addObject(sketch7)
sketch7.AttachmentSupport = (doc.XZ_Plane, [""])
sketch7.MapMode = "FlatFace"
sketch7.AttachmentOffset = App.Placement(Vector(0, 0, -3), App.Rotation())
sketch7.addGeometry(Part.Circle(Vector(0, 0, 0), Vector(0, 0, 1), 1.6), False)
sketch7.addConstraint([
    Sketcher.Constraint("Coincident", 0, 3, -1, 1),
    Sketcher.Constraint("Diameter", 0, Q("3.1 mm")),
])
pocket1 = doc.addObject("PartDesign::Pocket", "Pocket")
body.addObject(pocket1)
pocket1.Profile = sketch7
pocket1.Type = "ThroughAll"
pocket1.Reversed = True

doc.recompute()
